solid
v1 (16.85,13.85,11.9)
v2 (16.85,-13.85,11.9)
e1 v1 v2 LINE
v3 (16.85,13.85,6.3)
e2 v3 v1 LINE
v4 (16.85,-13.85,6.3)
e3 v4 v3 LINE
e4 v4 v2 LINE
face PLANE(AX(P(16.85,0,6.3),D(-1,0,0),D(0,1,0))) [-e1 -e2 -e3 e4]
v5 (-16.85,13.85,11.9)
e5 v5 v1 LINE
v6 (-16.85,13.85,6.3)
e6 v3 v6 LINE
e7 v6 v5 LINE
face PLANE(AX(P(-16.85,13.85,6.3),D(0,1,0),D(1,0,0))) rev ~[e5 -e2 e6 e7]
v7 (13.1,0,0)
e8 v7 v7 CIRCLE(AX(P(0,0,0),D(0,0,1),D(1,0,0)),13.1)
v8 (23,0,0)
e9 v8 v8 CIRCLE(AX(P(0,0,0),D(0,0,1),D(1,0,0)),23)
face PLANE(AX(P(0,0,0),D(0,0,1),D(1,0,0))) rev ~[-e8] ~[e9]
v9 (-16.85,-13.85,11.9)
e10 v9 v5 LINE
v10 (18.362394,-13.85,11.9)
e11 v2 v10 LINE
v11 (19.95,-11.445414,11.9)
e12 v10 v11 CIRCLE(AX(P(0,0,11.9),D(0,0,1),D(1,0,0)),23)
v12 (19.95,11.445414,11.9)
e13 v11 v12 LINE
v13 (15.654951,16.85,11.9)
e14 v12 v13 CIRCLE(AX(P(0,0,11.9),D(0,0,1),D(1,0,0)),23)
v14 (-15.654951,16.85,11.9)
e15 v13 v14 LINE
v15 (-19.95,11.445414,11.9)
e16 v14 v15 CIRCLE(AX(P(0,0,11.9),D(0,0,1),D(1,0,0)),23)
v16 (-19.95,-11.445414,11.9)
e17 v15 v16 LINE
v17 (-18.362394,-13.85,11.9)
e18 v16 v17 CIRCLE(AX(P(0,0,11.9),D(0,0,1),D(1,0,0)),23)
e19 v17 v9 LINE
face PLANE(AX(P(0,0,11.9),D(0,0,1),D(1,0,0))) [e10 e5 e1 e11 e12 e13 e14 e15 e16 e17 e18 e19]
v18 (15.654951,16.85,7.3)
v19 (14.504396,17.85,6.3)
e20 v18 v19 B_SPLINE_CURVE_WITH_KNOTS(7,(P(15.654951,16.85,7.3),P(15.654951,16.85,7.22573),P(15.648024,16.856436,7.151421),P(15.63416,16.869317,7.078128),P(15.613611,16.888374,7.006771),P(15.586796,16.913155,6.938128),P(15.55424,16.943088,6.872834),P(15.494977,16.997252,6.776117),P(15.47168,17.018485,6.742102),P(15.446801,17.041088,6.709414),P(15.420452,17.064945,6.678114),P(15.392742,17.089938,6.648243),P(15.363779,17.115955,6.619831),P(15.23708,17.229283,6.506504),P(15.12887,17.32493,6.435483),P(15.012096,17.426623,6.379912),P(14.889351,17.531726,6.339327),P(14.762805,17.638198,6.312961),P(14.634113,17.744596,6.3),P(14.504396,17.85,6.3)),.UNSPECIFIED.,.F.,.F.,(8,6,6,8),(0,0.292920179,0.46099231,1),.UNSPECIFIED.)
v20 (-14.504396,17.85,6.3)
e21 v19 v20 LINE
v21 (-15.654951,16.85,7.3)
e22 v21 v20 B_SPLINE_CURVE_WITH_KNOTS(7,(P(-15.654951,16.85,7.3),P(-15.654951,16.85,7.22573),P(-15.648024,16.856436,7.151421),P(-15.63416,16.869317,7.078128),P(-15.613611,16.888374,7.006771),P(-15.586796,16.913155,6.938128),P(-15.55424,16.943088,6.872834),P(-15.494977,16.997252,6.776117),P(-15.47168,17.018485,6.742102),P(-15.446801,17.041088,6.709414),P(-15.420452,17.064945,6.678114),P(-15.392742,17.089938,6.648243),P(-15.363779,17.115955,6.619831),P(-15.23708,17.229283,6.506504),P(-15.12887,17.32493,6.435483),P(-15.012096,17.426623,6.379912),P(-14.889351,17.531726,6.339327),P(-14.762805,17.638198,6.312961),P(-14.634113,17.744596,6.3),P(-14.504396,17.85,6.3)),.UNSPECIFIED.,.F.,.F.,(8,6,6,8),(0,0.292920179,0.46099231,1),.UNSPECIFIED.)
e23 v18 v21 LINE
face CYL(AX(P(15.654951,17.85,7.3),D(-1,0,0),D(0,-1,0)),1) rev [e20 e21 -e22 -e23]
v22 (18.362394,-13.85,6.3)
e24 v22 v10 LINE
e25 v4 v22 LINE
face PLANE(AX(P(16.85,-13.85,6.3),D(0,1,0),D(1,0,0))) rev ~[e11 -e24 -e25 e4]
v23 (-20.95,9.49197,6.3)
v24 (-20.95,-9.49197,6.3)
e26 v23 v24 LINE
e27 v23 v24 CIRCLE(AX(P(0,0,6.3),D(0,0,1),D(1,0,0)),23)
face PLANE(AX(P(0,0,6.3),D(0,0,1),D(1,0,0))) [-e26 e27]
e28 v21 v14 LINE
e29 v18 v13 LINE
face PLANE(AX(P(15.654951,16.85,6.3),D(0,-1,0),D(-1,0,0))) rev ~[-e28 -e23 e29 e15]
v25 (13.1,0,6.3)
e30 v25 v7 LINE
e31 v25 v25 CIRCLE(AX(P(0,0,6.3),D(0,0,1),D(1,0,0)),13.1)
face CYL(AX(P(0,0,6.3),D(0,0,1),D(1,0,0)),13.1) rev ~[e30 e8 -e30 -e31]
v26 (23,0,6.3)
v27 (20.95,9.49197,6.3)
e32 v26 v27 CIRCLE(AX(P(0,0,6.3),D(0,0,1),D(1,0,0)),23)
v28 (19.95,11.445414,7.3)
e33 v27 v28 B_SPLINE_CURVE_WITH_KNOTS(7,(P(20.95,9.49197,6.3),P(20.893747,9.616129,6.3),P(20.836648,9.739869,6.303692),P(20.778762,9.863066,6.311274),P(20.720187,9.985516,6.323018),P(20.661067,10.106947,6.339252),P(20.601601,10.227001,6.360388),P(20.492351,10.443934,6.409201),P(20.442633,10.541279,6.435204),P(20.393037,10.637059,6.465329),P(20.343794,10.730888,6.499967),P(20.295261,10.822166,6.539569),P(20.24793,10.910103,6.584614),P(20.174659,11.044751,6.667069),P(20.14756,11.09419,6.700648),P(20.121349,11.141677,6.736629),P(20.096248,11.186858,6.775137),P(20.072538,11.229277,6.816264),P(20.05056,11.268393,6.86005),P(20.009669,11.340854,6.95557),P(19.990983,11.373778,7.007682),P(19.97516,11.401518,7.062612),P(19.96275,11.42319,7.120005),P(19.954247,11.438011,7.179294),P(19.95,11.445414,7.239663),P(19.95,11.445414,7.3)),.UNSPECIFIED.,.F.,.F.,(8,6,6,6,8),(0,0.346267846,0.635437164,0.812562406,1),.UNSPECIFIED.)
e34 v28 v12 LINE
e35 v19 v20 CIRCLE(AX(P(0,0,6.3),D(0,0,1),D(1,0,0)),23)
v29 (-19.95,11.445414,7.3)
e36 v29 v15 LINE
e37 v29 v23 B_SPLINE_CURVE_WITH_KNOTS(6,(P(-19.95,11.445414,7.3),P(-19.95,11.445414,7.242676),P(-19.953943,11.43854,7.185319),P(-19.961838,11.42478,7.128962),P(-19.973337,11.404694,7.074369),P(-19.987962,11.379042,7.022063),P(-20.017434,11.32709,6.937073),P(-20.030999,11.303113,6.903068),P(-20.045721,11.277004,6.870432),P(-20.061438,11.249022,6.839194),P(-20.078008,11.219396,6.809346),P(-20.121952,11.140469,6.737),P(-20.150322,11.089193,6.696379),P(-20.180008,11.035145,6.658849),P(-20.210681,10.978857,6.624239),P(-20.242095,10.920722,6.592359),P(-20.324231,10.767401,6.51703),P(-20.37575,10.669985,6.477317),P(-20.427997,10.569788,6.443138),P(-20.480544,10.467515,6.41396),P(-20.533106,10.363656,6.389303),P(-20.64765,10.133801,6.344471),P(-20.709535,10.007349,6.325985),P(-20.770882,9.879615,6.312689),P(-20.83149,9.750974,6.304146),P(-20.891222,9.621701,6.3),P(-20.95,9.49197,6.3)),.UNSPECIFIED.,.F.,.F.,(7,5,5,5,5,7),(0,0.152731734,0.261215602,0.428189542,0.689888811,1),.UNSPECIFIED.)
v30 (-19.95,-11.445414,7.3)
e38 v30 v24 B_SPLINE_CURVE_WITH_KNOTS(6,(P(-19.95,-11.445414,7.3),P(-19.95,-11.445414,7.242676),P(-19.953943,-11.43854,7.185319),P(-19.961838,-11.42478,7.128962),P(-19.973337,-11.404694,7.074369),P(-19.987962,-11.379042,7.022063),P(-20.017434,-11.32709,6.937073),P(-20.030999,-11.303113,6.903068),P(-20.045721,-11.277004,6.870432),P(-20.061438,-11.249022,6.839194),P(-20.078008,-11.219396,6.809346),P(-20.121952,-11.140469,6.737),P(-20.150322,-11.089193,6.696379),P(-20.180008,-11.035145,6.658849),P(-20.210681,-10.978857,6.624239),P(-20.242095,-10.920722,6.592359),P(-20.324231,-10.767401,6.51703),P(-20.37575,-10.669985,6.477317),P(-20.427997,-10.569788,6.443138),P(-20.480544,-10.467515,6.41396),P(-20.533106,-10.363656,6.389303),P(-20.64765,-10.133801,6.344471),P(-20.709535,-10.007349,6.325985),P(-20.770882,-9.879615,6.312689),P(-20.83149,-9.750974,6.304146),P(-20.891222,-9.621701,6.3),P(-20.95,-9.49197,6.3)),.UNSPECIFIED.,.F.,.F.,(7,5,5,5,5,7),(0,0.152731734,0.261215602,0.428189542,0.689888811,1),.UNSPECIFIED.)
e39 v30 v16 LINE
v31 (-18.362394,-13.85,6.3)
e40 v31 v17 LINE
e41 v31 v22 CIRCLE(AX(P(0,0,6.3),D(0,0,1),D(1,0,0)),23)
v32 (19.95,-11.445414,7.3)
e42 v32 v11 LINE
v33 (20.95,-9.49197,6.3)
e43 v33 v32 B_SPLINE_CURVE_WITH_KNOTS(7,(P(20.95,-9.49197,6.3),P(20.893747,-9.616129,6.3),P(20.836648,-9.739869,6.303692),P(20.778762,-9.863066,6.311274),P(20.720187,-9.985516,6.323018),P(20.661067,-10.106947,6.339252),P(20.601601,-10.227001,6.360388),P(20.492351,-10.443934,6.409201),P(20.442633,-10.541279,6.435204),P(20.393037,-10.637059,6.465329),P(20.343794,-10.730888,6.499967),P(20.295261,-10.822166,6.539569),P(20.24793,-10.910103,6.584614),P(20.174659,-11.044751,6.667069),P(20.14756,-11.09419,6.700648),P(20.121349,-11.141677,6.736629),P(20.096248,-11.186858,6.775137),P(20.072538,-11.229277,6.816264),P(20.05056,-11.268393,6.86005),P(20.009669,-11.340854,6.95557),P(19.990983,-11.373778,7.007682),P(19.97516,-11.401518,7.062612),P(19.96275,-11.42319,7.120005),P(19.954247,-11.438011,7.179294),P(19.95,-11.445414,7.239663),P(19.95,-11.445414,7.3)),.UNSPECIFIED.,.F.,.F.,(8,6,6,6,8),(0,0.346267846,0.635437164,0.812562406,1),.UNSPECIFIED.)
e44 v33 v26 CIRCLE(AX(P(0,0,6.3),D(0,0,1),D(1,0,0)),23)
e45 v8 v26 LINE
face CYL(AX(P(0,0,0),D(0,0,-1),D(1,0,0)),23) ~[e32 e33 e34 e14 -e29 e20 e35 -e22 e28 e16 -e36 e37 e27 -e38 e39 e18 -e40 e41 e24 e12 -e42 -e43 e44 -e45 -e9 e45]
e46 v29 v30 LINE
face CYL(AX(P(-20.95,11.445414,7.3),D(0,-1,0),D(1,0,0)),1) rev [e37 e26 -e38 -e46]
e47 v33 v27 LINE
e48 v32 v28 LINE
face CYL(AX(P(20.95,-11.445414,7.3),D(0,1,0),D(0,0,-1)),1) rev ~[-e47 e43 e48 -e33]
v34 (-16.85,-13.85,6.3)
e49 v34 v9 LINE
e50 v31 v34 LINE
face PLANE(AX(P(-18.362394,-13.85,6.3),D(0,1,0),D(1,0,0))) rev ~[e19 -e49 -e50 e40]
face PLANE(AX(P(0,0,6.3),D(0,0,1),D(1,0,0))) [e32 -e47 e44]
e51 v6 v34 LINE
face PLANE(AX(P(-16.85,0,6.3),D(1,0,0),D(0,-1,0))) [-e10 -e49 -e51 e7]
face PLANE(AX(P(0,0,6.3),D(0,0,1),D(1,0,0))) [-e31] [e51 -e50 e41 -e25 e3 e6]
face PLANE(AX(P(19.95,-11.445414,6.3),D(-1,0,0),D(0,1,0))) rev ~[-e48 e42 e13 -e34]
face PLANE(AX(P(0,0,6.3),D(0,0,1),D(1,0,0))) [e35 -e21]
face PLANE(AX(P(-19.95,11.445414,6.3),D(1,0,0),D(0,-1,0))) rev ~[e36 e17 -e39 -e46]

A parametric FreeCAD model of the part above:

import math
import FreeCAD as App
import Part
import Sketcher

V = App.Vector


def edges_at(feature, points):
    """Names of the edges that pass closest to the given points."""
    edges = feature.Shape.Edges
    near = lambda p: min(range(len(edges)), key=lambda i: edges[i].distToShape(Part.Vertex(*p))[0])
    return sorted({f"Edge{near(p) + 1}" for p in points})

doc = App.newDocument("Part")
body = doc.addObject("PartDesign::Body", "Body")

# Sketch on XY plane
sketch1 = body.newObject("Sketcher::SketchObject", "Sketch")
sketch1.AttachmentSupport = (doc.getObject("XY_Plane"), [""])
sketch1.MapMode = "FlatFace"
sketch1.addGeometry(Part.Circle(V(0, 0, 0), V(0, 0, 1), 23), False)
sketch1.addConstraint([
    Sketcher.Constraint("Coincident", 0, 3, -1, 1),
    Sketcher.Constraint("Diameter", 0, 46.0),
])
pad1 = body.newObject("PartDesign::Pad", "Pad")
pad1.Profile = sketch1
pad1.Length = 6.3

# Sketch on XY plane
sketch2 = body.newObject("Sketcher::SketchObject", "Sketch001")
sketch2.AttachmentSupport = (doc.getObject("XY_Plane"), [""])
sketch2.MapMode = "FlatFace"
sketch2.AttachmentOffset = App.Placement(V(0, 0, 6.3), App.Rotation())
sketch2.addGeometry([
    Part.LineSegment(V(16.9, 13.8, 0), V(16.9, -13.8, 0)),  # 0
    Part.LineSegment(V(16.9, -13.8, 0), V(18.4, -13.8, 0)),  # 1
    Part.ArcOfCircle(Part.Circle(V(0, 0, 0), V(0, 0, 1), 23), math.radians(-37.03), math.radians(-29.84)),  # 2
    Part.LineSegment(V(19.9, -11.4, 0), V(19.9, 11.4, 0)),  # 3
    Part.ArcOfCircle(Part.Circle(V(0, 0, 0), V(0, 0, 1), 23), math.radians(29.84), math.radians(47.11)),  # 4
    Part.LineSegment(V(15.7, 16.9, 0), V(-15.7, 16.9, 0)),  # 5
    Part.ArcOfCircle(Part.Circle(V(0, 0, 0), V(0, 0, 1), 23), math.radians(132.89), math.radians(150.16)),  # 6
    Part.LineSegment(V(-19.9, 11.4, 0), V(-19.9, -11.4, 0)),  # 7
    Part.ArcOfCircle(Part.Circle(V(0, 0, 0), V(0, 0, 1), 23), math.radians(-150.16), math.radians(-142.97)),  # 8
    Part.LineSegment(V(-18.4, -13.8, 0), V(-16.9, -13.8, 0)),  # 9
    Part.LineSegment(V(-16.9, -13.8, 0), V(-16.9, 13.8, 0)),  # 10
    Part.LineSegment(V(-16.9, 13.8, 0), V(16.9, 13.8, 0)),  # 11
], False)
sketch2.addConstraint([
    Sketcher.Constraint("Coincident", 0, 2, 1, 1),
    Sketcher.Constraint("Coincident", 1, 2, 2, 1),
    Sketcher.Constraint("Coincident", 2, 2, 3, 1),
    Sketcher.Constraint("Coincident", 3, 2, 4, 1),
    Sketcher.Constraint("Coincident", 4, 2, 5, 1),
    Sketcher.Constraint("Coincident", 5, 2, 6, 1),
    Sketcher.Constraint("Coincident", 6, 2, 7, 1),
    Sketcher.Constraint("Coincident", 7, 2, 8, 1),
    Sketcher.Constraint("Coincident", 8, 2, 9, 1),
    Sketcher.Constraint("Coincident", 9, 2, 10, 1),
    Sketcher.Constraint("Coincident", 10, 2, 11, 1),
    Sketcher.Constraint("Coincident", 11, 2, 0, 1),
    Sketcher.Constraint("Vertical", 0),
    Sketcher.Constraint("Horizontal", 1),
    Sketcher.Constraint("Vertical", 3),
    Sketcher.Constraint("Horizontal", 5),
    Sketcher.Constraint("Vertical", 7),
    Sketcher.Constraint("Horizontal", 9),
    Sketcher.Constraint("Vertical", 10),
    Sketcher.Constraint("Horizontal", 11),
    Sketcher.Constraint("Coincident", 2, 3, -1, 1),
    Sketcher.Constraint("Coincident", 4, 3, -1, 1),
    Sketcher.Constraint("Coincident", 6, 3, -1, 1),
    Sketcher.Constraint("Coincident", 8, 3, -1, 1),
    Sketcher.Constraint("Equal", 2, 4),
    Sketcher.Constraint("Equal", 4, 6),
    Sketcher.Constraint("Equal", 6, 8),
    Sketcher.Constraint("Symmetric", 0, 2, 10, 2, -1, 1),
    Sketcher.Constraint("Horizontal", 3, 2, 6, 2),
    Sketcher.Constraint("Horizontal", 1, 2, 8, 2),
    Sketcher.Constraint("Radius", 2, 23.0),
    Sketcher.Constraint("DistanceY", 10, 2, 5, 2, 3.0),
    Sketcher.Constraint("DistanceX", 0, 2, 2, 2, 3.1),
    Sketcher.Constraint("DistanceX", -1, 1, 0, 2, 16.85),
    Sketcher.Constraint("DistanceY", 0, 2, -1, 1, 13.85),
])
pad2 = body.newObject("PartDesign::Pad", "Pad001")
pad2.Profile = sketch2
pad2.Length = 5.6

# Sketch on XY plane
sketch3 = body.newObject("Sketcher::SketchObject", "Sketch002")
sketch3.AttachmentSupport = (doc.getObject("XY_Plane"), [""])
sketch3.MapMode = "FlatFace"
sketch3.AttachmentOffset = App.Placement(V(0, 0, 6.3), App.Rotation())
sketch3.addGeometry(Part.Circle(V(0, 0, 0), V(0, 0, 1), 13), False)
sketch3.addConstraint([
    Sketcher.Constraint("Coincident", 0, 3, -1, 1),
    Sketcher.Constraint("Diameter", 0, 26.2),
])
pocket1 = body.newObject("PartDesign::Pocket", "Pocket")
pocket1.Profile = sketch3
pocket1.Length = 7
doc.recompute()

fillet = body.newObject("PartDesign::Fillet", "Fillet")
fillet.Base = (pocket1, edges_at(pocket1, [(0, 16.85, 6.3), (19.95, 0, 6.3), (-19.95, 0, 6.3)]))
fillet.Radius = 1

doc.recompute()
